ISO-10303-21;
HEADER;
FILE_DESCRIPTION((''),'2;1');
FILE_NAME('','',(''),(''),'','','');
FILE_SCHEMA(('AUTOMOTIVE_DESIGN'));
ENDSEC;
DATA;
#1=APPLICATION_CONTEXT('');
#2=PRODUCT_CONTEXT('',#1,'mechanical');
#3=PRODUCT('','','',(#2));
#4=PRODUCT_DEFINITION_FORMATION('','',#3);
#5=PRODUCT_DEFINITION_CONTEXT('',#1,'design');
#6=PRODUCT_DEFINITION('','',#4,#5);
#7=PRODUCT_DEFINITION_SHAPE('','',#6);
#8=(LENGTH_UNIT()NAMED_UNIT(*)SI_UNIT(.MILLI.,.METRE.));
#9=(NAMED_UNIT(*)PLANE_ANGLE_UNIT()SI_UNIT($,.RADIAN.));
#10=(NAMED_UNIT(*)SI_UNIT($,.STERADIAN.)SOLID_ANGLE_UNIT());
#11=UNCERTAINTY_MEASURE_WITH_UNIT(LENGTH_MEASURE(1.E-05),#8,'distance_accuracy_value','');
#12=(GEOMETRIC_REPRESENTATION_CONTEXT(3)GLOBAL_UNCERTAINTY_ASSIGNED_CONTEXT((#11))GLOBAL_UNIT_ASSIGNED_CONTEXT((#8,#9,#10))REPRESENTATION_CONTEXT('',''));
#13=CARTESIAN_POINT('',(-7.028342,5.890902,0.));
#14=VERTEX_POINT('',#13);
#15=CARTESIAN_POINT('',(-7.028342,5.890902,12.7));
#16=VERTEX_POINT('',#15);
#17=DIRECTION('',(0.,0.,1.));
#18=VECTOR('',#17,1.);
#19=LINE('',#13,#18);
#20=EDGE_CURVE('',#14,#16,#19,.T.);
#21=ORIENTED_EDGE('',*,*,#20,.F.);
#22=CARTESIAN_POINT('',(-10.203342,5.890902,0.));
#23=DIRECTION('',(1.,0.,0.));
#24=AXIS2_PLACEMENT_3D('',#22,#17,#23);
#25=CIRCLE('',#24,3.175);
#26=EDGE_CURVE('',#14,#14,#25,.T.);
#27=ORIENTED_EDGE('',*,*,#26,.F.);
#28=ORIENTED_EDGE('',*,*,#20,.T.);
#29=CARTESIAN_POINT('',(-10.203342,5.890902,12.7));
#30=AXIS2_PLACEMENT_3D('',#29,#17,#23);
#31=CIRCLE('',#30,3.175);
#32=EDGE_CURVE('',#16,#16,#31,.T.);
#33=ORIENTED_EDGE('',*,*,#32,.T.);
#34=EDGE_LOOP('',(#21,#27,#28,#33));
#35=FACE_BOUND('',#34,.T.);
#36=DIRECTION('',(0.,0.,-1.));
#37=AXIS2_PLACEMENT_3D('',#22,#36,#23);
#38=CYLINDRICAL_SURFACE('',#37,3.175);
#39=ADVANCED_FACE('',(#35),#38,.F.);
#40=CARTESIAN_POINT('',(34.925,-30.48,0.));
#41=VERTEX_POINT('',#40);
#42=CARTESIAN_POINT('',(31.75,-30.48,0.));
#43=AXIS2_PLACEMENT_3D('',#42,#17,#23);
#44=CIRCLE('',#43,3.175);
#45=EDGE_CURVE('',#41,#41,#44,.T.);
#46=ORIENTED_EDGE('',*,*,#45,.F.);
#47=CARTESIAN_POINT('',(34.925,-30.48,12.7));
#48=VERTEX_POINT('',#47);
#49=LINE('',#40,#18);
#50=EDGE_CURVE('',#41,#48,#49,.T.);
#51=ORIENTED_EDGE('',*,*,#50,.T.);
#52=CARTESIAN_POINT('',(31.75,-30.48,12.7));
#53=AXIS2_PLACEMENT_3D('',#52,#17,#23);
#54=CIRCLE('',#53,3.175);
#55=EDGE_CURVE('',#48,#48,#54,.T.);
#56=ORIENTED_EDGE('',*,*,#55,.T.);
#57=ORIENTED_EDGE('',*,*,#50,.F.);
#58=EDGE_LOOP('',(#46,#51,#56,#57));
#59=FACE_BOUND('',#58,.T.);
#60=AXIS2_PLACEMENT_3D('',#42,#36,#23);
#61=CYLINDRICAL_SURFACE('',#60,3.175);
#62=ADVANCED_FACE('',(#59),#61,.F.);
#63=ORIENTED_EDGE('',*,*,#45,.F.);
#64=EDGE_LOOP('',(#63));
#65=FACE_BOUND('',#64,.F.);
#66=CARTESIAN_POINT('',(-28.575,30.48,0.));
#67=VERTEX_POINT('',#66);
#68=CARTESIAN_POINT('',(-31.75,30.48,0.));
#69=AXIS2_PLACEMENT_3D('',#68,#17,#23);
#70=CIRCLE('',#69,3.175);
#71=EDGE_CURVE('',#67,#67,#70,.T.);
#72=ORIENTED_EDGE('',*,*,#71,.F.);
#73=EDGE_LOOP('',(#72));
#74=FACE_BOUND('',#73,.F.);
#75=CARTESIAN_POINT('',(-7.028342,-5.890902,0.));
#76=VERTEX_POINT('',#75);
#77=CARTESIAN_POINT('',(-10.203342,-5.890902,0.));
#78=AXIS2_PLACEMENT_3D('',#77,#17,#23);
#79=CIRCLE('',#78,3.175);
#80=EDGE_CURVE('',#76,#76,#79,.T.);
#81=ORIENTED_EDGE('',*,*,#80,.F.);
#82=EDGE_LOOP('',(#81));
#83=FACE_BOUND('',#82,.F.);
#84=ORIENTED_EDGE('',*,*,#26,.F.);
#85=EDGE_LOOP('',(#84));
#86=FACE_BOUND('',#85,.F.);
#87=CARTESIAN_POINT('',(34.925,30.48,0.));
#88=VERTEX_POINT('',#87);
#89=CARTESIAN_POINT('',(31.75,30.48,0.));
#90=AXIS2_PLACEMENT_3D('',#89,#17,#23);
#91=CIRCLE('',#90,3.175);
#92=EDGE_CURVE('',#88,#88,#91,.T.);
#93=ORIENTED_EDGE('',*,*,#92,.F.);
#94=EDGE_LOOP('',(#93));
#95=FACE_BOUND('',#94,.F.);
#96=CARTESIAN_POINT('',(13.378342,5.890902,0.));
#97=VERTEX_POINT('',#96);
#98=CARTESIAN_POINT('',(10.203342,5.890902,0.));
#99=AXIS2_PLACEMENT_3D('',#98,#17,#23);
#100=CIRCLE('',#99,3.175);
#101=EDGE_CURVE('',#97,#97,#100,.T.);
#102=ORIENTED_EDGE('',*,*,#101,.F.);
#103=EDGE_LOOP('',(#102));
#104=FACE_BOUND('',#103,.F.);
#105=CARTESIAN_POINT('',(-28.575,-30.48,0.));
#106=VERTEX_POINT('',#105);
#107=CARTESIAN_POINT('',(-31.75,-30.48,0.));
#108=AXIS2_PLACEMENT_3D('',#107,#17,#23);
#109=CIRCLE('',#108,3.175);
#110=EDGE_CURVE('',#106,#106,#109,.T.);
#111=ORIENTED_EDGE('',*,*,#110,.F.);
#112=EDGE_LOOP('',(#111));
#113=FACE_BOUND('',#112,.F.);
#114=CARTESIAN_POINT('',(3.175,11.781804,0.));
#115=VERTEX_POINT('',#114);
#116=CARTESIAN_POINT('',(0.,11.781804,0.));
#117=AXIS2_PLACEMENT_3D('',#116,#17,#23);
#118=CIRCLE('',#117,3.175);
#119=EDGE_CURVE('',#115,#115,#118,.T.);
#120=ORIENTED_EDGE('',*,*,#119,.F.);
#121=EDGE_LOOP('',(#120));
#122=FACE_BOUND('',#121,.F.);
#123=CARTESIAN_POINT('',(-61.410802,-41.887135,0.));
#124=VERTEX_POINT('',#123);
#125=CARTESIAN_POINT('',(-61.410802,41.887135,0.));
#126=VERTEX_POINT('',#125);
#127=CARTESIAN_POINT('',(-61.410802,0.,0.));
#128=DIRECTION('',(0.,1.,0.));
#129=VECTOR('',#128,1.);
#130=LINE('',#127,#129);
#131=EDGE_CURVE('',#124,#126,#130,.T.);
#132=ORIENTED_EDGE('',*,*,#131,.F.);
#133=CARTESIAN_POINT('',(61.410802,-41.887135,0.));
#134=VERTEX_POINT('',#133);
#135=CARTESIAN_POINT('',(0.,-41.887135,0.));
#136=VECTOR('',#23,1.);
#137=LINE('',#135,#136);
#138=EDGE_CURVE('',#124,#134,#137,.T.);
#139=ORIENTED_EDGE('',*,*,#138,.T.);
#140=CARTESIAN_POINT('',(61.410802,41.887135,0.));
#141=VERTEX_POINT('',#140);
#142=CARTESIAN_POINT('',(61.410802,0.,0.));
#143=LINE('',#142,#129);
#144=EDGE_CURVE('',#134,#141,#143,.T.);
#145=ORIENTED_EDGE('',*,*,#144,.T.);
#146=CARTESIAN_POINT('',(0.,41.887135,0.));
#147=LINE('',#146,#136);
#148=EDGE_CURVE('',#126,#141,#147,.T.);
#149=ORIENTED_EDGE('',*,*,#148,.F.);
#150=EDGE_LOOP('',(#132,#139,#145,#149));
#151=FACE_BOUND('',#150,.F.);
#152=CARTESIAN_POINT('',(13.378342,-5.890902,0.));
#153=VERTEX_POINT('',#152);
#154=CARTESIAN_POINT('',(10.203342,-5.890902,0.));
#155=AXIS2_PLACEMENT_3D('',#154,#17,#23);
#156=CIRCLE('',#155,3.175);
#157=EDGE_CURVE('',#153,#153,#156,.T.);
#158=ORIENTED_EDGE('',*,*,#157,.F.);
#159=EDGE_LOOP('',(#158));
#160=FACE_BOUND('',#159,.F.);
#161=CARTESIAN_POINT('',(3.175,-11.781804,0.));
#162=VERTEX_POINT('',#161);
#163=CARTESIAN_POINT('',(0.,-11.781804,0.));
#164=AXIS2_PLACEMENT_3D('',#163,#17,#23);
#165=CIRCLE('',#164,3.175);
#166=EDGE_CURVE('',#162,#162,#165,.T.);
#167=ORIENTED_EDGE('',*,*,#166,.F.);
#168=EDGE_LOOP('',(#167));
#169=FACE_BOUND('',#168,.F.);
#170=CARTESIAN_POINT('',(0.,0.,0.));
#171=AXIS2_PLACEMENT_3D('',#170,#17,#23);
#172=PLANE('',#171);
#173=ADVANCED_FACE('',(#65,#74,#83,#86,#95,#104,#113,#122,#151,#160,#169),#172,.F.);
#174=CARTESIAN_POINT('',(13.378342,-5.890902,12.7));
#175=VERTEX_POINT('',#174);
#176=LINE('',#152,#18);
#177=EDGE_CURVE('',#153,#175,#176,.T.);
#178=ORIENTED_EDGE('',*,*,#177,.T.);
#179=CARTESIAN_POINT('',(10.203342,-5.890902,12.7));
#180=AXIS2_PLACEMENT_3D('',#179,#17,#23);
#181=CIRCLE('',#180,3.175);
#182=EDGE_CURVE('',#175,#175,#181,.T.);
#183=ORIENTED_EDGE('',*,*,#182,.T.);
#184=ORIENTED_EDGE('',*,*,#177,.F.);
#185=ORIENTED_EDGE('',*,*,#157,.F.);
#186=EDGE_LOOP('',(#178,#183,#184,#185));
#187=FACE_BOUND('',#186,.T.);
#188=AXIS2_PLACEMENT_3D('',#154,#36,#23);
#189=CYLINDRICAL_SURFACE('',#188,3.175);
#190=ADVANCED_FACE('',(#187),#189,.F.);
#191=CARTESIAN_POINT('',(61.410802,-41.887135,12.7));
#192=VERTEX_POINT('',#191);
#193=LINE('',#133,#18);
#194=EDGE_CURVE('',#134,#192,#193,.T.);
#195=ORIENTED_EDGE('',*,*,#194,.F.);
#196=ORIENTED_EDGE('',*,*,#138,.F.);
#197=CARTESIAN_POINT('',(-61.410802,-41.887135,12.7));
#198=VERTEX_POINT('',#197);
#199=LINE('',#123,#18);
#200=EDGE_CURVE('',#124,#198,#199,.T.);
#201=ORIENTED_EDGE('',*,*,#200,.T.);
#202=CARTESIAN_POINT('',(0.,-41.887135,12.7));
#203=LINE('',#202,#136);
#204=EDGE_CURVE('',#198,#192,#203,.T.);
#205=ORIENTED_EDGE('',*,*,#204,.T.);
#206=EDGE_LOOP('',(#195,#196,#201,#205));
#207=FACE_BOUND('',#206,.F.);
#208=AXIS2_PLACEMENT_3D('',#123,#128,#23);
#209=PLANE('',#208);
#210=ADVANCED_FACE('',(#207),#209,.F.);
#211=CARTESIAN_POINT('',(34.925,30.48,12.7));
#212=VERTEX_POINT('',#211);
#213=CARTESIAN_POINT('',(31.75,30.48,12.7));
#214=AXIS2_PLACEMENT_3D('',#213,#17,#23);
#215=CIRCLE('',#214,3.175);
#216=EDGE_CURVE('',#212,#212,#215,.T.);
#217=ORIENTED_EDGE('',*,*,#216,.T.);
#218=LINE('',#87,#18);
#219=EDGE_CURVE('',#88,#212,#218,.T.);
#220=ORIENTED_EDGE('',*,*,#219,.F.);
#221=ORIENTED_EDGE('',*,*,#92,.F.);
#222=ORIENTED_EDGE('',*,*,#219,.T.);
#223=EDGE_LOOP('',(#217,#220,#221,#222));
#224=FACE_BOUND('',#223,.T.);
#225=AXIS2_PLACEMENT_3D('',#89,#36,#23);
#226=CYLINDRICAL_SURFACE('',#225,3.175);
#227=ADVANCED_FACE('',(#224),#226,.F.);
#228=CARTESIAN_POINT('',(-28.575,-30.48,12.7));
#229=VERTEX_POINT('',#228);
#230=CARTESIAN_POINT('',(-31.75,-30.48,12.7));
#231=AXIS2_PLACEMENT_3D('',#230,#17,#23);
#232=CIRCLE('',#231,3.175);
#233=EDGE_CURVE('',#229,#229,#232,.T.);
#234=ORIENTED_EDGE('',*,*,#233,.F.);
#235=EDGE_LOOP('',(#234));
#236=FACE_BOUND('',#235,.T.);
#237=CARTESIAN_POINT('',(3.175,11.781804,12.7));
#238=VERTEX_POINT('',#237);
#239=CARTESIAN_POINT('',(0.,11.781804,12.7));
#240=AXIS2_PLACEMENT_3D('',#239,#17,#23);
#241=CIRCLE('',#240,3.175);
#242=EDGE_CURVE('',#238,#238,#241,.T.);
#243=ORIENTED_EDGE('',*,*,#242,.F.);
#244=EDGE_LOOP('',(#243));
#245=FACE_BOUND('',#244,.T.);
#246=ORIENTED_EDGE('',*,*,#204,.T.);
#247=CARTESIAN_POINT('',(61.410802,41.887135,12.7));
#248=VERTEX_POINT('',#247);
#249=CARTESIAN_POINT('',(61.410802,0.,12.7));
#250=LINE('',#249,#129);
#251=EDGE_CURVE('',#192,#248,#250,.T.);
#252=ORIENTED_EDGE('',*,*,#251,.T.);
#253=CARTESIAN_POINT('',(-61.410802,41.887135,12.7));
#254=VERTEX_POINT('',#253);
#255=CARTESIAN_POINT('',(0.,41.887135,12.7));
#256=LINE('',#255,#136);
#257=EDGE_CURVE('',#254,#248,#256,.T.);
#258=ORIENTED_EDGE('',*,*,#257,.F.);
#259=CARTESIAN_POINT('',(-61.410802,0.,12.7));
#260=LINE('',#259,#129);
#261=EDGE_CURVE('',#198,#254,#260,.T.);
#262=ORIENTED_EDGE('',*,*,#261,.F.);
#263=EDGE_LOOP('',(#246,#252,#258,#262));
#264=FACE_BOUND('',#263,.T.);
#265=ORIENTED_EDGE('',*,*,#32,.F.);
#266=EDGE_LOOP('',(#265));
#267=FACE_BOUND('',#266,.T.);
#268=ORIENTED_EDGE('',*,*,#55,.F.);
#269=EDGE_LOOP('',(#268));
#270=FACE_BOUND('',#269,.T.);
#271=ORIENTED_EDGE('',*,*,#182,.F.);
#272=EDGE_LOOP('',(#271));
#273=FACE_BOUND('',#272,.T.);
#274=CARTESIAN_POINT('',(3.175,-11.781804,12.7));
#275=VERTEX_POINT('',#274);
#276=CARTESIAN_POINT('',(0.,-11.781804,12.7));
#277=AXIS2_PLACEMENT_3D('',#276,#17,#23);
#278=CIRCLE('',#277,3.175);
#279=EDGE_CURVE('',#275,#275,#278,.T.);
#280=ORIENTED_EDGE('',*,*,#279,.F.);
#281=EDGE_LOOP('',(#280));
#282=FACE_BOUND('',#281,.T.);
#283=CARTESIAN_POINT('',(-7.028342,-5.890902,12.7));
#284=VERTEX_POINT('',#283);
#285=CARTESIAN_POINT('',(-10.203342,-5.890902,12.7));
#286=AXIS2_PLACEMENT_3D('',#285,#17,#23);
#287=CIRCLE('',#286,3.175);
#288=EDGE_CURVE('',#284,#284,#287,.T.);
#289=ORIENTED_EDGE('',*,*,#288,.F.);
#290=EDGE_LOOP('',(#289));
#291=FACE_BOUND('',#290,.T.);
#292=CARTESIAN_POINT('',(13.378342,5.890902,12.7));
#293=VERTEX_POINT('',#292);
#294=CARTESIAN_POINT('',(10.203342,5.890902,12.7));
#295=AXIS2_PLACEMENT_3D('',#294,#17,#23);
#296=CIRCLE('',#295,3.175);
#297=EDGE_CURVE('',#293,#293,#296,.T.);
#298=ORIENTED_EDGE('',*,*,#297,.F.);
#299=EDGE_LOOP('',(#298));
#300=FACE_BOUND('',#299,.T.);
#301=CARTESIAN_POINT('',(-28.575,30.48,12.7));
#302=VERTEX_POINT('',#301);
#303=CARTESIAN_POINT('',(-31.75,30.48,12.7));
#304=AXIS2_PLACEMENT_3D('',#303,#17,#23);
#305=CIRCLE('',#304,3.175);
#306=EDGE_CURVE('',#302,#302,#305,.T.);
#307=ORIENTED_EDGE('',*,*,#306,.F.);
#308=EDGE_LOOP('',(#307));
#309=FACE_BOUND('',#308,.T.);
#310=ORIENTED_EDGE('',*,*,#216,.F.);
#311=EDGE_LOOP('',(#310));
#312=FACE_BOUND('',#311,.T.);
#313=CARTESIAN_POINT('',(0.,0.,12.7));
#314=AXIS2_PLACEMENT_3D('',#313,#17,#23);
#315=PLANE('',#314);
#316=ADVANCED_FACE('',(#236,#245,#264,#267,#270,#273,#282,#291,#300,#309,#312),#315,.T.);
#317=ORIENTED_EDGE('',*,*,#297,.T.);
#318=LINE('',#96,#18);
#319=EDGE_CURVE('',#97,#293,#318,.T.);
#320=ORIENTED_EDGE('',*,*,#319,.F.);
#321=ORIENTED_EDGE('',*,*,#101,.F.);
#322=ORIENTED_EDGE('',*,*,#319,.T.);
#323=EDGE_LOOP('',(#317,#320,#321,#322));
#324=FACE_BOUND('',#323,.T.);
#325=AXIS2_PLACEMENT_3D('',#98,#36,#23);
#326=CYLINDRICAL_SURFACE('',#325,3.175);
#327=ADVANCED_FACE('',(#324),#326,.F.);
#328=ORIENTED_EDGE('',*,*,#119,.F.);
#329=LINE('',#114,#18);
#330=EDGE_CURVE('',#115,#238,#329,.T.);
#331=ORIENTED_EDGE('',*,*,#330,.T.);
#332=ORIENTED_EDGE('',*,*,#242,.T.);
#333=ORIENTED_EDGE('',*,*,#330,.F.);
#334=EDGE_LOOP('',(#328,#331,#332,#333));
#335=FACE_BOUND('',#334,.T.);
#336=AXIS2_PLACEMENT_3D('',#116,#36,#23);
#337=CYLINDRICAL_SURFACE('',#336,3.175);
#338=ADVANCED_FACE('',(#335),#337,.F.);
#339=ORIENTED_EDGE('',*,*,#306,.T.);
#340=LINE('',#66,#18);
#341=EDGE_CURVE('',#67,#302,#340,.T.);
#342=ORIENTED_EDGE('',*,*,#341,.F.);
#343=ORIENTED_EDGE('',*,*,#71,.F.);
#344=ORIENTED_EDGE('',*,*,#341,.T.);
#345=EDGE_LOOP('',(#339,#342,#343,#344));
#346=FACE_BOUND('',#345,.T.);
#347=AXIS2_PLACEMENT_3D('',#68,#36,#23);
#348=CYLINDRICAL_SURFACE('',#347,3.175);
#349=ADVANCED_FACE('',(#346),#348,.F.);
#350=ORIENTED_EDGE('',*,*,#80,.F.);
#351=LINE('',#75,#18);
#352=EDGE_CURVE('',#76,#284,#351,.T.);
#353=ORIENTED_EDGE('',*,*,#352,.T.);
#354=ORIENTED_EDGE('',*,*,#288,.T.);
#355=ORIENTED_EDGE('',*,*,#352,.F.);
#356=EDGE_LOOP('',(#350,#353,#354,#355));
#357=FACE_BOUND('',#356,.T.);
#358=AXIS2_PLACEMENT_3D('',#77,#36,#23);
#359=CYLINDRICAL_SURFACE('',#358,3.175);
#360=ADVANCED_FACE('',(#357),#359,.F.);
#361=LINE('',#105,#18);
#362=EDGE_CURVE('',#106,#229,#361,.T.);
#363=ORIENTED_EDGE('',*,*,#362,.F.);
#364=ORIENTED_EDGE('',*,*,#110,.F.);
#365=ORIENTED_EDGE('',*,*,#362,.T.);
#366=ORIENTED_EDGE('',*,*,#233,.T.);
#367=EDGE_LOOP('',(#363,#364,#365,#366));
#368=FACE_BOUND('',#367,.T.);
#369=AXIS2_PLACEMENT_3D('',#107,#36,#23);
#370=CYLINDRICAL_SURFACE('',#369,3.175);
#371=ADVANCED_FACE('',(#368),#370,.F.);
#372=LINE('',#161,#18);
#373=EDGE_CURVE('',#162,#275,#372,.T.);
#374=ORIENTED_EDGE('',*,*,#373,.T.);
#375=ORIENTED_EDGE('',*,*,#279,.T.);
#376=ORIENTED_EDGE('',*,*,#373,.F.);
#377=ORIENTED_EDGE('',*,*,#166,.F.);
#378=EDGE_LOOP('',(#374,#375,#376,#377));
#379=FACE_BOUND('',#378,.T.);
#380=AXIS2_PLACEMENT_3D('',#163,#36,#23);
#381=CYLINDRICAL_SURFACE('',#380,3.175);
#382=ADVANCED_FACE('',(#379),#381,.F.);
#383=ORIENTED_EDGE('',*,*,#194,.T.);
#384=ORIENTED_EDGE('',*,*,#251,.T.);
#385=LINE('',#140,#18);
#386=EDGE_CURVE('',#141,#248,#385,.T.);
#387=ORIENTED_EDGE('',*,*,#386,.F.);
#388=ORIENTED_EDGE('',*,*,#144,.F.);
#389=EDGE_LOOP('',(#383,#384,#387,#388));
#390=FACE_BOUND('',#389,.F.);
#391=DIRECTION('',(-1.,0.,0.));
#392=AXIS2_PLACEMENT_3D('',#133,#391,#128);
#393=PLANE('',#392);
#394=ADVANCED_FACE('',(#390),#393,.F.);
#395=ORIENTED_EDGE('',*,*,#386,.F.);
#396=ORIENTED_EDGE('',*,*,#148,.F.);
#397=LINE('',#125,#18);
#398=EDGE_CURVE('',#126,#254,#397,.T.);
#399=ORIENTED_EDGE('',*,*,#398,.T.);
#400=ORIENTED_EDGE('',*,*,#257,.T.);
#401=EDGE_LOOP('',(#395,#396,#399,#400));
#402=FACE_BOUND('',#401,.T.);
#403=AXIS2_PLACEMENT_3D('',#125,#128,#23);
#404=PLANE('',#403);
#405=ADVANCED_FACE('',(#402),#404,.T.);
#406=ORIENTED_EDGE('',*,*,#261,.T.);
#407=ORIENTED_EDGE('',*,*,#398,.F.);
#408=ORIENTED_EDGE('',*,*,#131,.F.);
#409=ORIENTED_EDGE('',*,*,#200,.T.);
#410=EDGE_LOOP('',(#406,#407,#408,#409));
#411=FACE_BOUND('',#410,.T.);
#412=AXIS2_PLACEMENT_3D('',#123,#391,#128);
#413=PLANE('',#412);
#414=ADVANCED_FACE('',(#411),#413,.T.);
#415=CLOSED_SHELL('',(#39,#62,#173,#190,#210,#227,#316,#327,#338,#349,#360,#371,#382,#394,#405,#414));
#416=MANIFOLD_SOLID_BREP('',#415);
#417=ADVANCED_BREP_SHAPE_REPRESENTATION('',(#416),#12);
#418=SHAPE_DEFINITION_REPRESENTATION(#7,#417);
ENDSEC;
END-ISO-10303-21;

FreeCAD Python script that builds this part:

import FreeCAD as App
import Part
import Sketcher

V = App.Vector
Q = App.Units.Quantity


def add_polygon(sketch, points):
    """Adds a closed chain of lines whose ends are joined by coincident constraints."""
    first, n = sketch.GeometryCount, len(points)
    for a, b in zip(points, points[1:] + points[:1]):
        sketch.addGeometry(Part.LineSegment(App.Vector(*a, 0), App.Vector(*b, 0)), False)
    for i in range(n):
        sketch.addConstraint(Sketcher.Constraint("Coincident", first + i, 2, first + (i + 1) % n, 1))

doc = App.newDocument("Part")
params = doc.addObject("Spreadsheet::Sheet", "Params")
for row, (alias, value) in enumerate([
    ("sketch1_diameter", "0.25 in"),
    ("pad1_length", "0.5 in"),
], start=1):
    params.set(f"A{row}", alias)
    params.set(f"B{row}", "=" + value)
    params.setAlias(f"B{row}", alias)

body = doc.addObject("PartDesign::Body", "Body")

sketch1 = body.newObject("Sketcher::SketchObject", "Sketch")
sketch1.AttachmentSupport = (doc.getObject("XY_Plane"), [""])
sketch1.MapMode = "FlatFace"
add_polygon(sketch1, [(-61.410802, 41.887135), (-61.410802, -41.887135), (61.410802, -41.887135), (61.410802, 41.887135)])
sketch1.addGeometry(Part.Circle(V(-31.75, -30.48, 0), V(0, 0, 1), 3.175), False)
sketch1.addGeometry(Part.Circle(V(-10.203342, -5.890902, 0), V(0, 0, 1), 3.175), False)
sketch1.addGeometry(Part.Circle(V(31.75, -30.48, 0), V(0, 0, 1), 3.175), False)
sketch1.addGeometry(Part.Circle(V(0, -11.781804, 0), V(0, 0, 1), 3.175), False)
sketch1.addGeometry(Part.Circle(V(10.203342, -5.890902, 0), V(0, 0, 1), 3.175), False)
sketch1.addGeometry(Part.Circle(V(-10.203342, 5.890902, 0), V(0, 0, 1), 3.175), False)
sketch1.addGeometry(Part.Circle(V(-31.75, 30.48, 0), V(0, 0, 1), 3.175), False)
sketch1.addGeometry(Part.Circle(V(10.203342, 5.890902, 0), V(0, 0, 1), 3.175), False)
sketch1.addGeometry(Part.Circle(V(0, 11.781804, 0), V(0, 0, 1), 3.175), False)
sketch1.addGeometry(Part.Circle(V(31.75, 30.48, 0), V(0, 0, 1), 3.175), False)
sketch1.addConstraint(Sketcher.Constraint("Vertical", 0))
sketch1.addConstraint(Sketcher.Constraint("Horizontal", 1))
sketch1.addConstraint(Sketcher.Constraint("Vertical", 2))
sketch1.addConstraint(Sketcher.Constraint("Horizontal", 3))
sketch1.addConstraint(Sketcher.Constraint("Equal", 4, 5))
sketch1.addConstraint(Sketcher.Constraint("Equal", 5, 6))
sketch1.addConstraint(Sketcher.Constraint("Equal", 6, 7))
sketch1.addConstraint(Sketcher.Constraint("Equal", 7, 8))
sketch1.addConstraint(Sketcher.Constraint("Equal", 8, 9))
sketch1.addConstraint(Sketcher.Constraint("Equal", 9, 10))
sketch1.addConstraint(Sketcher.Constraint("Equal", 10, 11))
sketch1.addConstraint(Sketcher.Constraint("Equal", 11, 12))
sketch1.addConstraint(Sketcher.Constraint("Equal", 12, 13))
sketch1.addConstraint(Sketcher.Constraint("Symmetric", 8, 3, 9, 3, -1, 1))
sketch1.addConstraint(Sketcher.Constraint("Symmetric", 6, 3, 10, 3, -1, 1))
sketch1.addConstraint(Sketcher.Constraint("Symmetric", 5, 3, 11, 3, -1, 1))
sketch1.addConstraint(Sketcher.Constraint("Symmetric", 7, 3, 12, 3, -1, 1))
sketch1.addConstraint(Sketcher.Constraint("Symmetric", 4, 3, 13, 3, -1, 1))
sketch1.addConstraint(Sketcher.Constraint("Symmetric", 0, 2, 2, 2, -1, 1))
sketch1.addConstraint(Sketcher.Constraint("Symmetric", 4, 3, 6, 3, -2))
sketch1.addConstraint(Sketcher.Constraint("Symmetric", 5, 3, 8, 3, -2))
sketch1.addConstraint(Sketcher.Constraint("PointOnObject", 7, 3, -2))
sketch1.addConstraint(Sketcher.Constraint("Diameter", 4, Q("0.25 in")))
sketch1.addConstraint(Sketcher.Constraint("DistanceY", 4, 3, -1, 1, Q("1.2 in")))
sketch1.addConstraint(Sketcher.Constraint("DistanceX", 4, 3, 6, 3, Q("2.5 in")))
sketch1.addConstraint(Sketcher.Constraint("DistanceY", 0, 2, -1, 1, Q("1.6490998 in")))
sketch1.addConstraint(Sketcher.Constraint("DistanceY", 5, 3, -1, 1, 5.890902))
sketch1.addConstraint(Sketcher.Constraint("DistanceX", 0, 2, -1, 1, 61.410802))
sketch1.addConstraint(Sketcher.Constraint("DistanceY", 7, 3, 5, 3, 5.890902))
sketch1.addConstraint(Sketcher.Constraint("DistanceX", 5, 3, -1, 1, 10.203342))
sketch1.setExpression("Constraints[26]", "Params.sketch1_diameter")
pad1 = body.newObject("PartDesign::Pad", "Pad")
pad1.Profile = sketch1
pad1.setExpression("Length", "Params.pad1_length")

doc.recompute()
